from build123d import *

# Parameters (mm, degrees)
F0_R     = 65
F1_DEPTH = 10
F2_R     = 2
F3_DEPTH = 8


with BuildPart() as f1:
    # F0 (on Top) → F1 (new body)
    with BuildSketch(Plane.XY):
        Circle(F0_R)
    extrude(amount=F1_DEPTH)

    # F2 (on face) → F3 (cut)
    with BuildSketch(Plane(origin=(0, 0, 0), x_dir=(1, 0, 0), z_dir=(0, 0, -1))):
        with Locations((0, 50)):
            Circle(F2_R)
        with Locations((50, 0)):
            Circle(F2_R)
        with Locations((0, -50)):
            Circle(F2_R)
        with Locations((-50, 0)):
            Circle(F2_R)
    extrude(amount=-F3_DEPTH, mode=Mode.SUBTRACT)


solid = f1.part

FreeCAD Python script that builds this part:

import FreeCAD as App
import Part
import Sketcher

V = App.Vector

doc = App.newDocument("Part")
body = doc.addObject("PartDesign::Body", "Body")

# Sketch on XY plane
sketch1 = body.newObject("Sketcher::SketchObject", "Sketch")
sketch1.AttachmentSupport = (doc.getObject("XY_Plane"), [""])
sketch1.MapMode = "FlatFace"
sketch1.addGeometry(Part.Circle(V(0, 0, 0), V(0, 0, 1), 65), False)
sketch1.addConstraint([
    Sketcher.Constraint("Coincident", 0, 3, -1, 1),
    Sketcher.Constraint("Diameter", 0, 130.0),
])
pad1 = body.newObject("PartDesign::Pad", "Pad")
pad1.Profile = sketch1
pad1.Length = 10

# Sketch on XY plane
sketch2 = body.newObject("Sketcher::SketchObject", "Sketch001")
sketch2.AttachmentSupport = (doc.getObject("XY_Plane"), [""])
sketch2.MapMode = "FlatFace"
sketch2.addGeometry([
    Part.Circle(V(0, -50, 0), V(0, 0, 1), 2),
    Part.Circle(V(50, 0, 0), V(0, 0, 1), 2),
    Part.Circle(V(0, 50, 0), V(0, 0, 1), 2),
    Part.Circle(V(-50, 0, 0), V(0, 0, 1), 2),
], False)
sketch2.addConstraint([
    Sketcher.Constraint("Equal", 0, 1),
    Sketcher.Constraint("Equal", 1, 2),
    Sketcher.Constraint("Equal", 2, 3),
    Sketcher.Constraint("Symmetric", 0, 3, 2, 3, -1, 1),
    Sketcher.Constraint("Symmetric", 1, 3, 3, 3, -1, 1),
    Sketcher.Constraint("PointOnObject", 0, 3, -2),
    Sketcher.Constraint("PointOnObject", 1, 3, -1),
    Sketcher.Constraint("Diameter", 0, 4.0),
    Sketcher.Constraint("DistanceY", 0, 3, -1, 1, 50.0),
    Sketcher.Constraint("DistanceX", -1, 1, 1, 3, 50.0),
])
pocket1 = body.newObject("PartDesign::Pocket", "Pocket")
pocket1.Profile = sketch2
pocket1.Length = 8
pocket1.Reversed = True

doc.recompute()
